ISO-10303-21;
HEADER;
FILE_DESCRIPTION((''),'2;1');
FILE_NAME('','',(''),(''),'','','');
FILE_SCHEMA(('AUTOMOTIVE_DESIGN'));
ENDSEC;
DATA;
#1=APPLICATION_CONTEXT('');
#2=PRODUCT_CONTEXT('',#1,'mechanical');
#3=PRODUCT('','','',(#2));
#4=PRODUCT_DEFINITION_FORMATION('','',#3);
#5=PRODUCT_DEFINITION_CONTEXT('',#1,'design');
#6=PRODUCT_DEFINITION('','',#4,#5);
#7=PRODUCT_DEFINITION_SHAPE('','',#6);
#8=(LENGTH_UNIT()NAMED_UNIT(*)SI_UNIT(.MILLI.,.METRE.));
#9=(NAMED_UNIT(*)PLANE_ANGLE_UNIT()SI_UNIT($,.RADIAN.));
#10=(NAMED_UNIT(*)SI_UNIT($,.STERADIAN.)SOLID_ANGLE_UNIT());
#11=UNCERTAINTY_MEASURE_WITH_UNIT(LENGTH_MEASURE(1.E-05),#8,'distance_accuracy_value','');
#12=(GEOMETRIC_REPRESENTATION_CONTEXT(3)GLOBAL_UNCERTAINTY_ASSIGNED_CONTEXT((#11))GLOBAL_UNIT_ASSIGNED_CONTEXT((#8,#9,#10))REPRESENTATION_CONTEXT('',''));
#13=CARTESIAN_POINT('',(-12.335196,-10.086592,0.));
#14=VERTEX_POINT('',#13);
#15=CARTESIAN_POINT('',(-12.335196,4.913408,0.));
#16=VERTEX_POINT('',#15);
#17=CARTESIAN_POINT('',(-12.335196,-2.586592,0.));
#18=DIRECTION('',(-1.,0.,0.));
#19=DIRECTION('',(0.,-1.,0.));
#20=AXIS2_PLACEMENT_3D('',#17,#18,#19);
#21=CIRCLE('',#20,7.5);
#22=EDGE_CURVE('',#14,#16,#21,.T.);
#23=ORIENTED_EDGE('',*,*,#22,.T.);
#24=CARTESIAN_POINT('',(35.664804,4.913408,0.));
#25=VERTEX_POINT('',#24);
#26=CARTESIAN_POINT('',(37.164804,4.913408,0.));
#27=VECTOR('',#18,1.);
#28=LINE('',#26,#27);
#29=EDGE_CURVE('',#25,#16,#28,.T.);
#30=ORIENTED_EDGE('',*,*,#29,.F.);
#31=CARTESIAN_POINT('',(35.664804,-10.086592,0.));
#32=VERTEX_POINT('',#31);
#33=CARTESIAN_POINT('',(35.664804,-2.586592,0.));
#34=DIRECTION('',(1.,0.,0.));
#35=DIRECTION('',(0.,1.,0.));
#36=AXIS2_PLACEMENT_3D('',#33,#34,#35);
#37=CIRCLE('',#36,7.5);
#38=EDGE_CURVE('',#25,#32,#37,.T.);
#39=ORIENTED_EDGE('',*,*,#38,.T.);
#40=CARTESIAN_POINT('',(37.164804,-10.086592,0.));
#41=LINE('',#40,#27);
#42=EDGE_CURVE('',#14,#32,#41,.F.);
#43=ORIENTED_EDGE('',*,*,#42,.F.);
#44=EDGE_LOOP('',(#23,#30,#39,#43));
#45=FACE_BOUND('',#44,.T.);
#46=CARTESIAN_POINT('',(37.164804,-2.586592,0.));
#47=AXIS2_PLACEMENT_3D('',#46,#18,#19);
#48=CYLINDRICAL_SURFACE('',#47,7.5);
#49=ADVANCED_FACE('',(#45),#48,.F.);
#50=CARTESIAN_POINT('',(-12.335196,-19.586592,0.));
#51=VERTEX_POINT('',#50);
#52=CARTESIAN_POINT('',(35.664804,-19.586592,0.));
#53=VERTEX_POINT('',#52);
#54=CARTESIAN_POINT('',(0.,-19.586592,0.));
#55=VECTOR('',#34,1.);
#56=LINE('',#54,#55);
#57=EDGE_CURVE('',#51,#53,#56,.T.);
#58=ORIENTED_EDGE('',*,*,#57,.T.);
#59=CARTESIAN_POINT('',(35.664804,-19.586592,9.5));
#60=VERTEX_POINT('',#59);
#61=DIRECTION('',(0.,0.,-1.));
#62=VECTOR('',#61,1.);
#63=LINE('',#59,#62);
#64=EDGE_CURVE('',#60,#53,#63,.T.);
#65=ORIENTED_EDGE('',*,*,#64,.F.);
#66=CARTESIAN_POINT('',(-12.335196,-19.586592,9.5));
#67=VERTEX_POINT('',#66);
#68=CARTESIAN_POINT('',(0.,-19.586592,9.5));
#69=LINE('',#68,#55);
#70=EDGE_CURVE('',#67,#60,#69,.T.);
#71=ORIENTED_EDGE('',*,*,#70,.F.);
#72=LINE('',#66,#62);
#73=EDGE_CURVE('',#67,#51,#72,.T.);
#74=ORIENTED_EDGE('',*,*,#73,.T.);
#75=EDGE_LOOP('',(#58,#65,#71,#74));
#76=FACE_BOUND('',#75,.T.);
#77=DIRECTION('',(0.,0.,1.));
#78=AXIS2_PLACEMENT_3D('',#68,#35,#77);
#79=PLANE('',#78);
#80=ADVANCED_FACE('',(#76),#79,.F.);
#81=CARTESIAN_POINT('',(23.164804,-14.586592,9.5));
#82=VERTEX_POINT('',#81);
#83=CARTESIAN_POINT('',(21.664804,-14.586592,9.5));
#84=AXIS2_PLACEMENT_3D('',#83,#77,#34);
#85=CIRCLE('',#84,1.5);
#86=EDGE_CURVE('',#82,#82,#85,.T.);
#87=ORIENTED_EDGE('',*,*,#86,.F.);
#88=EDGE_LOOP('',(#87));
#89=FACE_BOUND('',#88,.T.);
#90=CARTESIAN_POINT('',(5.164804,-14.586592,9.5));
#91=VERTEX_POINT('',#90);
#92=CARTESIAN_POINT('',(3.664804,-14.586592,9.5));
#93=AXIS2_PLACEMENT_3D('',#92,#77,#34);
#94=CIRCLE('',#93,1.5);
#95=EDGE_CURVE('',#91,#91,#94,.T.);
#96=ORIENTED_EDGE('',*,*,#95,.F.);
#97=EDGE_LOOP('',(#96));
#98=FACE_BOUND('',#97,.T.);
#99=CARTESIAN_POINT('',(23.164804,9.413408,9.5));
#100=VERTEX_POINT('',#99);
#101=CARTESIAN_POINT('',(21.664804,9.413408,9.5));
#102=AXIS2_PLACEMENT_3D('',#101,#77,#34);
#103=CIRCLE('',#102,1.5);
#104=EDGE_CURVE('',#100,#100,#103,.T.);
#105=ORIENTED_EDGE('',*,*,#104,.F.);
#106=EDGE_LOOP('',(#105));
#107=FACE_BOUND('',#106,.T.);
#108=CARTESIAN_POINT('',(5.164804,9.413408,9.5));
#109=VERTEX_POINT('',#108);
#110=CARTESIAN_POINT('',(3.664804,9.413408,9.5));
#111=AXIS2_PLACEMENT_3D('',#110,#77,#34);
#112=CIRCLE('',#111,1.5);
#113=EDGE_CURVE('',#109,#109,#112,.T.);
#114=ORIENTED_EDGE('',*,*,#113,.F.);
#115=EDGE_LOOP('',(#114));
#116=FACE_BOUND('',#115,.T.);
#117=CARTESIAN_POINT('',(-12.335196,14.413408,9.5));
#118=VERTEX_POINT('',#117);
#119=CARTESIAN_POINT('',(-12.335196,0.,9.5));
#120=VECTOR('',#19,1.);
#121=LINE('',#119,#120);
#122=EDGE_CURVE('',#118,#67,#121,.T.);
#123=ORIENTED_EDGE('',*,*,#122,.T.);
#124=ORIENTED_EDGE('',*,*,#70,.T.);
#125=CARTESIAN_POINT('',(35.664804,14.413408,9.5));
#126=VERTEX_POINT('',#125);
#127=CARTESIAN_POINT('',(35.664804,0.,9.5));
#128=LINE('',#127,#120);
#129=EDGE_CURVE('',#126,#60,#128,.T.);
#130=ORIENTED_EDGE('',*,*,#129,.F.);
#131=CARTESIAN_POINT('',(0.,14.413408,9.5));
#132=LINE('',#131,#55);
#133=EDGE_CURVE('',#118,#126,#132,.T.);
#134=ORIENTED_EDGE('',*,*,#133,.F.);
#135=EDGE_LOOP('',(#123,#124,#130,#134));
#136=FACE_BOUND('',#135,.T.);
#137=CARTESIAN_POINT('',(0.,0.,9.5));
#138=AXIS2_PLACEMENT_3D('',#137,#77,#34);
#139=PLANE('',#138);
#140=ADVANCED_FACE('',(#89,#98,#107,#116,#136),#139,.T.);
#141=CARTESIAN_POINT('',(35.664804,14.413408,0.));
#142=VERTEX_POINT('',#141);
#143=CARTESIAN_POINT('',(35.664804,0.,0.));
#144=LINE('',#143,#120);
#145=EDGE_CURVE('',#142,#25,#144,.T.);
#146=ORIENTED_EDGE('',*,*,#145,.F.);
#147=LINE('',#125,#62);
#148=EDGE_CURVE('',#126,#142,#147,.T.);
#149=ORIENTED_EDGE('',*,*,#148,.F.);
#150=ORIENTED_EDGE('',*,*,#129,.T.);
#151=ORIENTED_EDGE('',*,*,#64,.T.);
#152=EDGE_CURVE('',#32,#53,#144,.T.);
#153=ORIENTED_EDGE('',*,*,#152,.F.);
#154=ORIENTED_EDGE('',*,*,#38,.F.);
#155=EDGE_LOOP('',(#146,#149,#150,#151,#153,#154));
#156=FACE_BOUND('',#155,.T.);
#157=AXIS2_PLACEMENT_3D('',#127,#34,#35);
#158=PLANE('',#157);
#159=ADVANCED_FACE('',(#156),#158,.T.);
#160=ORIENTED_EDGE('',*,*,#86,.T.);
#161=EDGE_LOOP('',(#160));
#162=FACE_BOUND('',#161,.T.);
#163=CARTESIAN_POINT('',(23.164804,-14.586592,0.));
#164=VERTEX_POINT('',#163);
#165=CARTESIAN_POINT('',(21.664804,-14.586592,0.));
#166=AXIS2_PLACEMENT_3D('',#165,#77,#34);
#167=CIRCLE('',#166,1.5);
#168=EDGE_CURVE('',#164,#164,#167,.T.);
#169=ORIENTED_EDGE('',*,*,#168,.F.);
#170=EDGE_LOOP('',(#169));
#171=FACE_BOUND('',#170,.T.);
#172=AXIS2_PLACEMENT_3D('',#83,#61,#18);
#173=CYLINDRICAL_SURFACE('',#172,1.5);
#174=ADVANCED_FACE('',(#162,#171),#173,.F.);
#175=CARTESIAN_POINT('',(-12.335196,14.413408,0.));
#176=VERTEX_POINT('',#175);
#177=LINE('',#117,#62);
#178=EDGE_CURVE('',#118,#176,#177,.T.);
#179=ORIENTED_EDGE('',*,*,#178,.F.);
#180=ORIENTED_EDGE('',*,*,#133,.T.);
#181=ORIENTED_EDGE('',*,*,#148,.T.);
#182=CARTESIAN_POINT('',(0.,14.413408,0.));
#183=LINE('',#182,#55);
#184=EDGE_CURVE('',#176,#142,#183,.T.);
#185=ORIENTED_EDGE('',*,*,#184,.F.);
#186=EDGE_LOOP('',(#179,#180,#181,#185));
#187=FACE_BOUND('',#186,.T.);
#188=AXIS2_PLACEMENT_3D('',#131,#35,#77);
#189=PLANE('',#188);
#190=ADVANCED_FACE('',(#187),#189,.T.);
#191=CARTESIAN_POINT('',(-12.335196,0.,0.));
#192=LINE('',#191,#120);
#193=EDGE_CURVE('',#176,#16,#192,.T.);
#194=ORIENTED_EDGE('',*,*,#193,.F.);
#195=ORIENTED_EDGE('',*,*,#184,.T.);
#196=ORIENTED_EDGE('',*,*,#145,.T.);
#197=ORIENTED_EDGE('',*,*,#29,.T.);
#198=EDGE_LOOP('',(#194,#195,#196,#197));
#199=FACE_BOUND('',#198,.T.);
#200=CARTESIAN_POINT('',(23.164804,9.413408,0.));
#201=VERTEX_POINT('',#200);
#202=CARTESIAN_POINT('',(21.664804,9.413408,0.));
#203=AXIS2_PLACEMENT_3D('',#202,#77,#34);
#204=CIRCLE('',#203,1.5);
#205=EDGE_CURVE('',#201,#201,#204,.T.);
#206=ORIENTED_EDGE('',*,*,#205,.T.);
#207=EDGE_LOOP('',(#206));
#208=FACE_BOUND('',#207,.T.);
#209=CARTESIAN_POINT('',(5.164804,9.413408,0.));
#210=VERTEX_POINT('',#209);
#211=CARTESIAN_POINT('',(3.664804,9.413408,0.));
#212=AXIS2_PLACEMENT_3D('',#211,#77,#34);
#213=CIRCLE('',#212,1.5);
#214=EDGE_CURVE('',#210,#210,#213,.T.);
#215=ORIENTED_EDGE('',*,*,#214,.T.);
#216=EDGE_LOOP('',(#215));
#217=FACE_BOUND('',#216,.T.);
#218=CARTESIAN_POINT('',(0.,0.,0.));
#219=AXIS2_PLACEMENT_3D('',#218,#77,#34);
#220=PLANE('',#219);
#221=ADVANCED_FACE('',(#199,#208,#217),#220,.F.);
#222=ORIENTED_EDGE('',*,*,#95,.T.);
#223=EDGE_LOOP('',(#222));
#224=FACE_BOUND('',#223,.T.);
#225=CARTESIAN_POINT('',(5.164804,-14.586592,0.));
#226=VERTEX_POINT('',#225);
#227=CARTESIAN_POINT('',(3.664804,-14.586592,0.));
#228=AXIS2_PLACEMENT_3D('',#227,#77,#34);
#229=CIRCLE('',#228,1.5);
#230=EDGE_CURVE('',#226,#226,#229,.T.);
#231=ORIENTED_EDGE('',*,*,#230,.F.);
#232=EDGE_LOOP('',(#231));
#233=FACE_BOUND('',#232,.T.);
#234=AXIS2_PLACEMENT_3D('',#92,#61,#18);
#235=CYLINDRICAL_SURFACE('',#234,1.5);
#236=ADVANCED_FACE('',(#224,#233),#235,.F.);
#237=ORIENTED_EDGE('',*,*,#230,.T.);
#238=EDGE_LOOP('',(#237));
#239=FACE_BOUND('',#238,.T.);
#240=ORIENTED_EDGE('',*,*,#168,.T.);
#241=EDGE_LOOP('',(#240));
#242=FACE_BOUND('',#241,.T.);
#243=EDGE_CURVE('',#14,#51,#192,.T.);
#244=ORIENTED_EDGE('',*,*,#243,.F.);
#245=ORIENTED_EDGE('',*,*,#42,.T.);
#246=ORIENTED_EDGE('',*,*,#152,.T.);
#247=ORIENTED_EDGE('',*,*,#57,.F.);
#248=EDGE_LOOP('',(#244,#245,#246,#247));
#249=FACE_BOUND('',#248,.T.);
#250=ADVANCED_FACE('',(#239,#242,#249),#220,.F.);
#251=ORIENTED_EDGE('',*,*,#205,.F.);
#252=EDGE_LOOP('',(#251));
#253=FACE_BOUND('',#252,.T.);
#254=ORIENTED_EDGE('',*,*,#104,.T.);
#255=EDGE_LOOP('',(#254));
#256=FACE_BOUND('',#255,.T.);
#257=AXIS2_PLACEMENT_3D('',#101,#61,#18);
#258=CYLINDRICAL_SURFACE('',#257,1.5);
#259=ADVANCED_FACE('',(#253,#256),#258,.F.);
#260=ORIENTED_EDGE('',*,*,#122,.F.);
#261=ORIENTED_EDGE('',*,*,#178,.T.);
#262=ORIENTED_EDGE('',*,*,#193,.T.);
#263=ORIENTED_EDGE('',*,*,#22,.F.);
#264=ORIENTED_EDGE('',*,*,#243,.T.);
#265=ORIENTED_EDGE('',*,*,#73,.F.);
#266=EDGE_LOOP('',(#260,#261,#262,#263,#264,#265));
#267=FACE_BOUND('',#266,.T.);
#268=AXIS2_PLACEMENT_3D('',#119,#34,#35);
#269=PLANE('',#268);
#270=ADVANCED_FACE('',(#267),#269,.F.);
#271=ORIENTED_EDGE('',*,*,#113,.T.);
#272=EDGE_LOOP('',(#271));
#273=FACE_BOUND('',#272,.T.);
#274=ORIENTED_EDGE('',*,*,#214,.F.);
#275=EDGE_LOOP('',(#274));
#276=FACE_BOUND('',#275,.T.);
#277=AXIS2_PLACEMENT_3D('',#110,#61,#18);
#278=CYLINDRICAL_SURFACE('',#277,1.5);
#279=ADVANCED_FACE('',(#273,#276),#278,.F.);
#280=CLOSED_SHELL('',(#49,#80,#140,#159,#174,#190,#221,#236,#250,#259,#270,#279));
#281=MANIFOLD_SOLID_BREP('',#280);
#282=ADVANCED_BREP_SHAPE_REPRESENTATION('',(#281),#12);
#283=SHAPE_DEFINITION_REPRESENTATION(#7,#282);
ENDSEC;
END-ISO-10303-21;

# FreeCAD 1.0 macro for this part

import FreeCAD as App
import Part
import Sketcher
from FreeCAD import Vector
Q = App.Units.Quantity

doc = App.newDocument("Part")
params = doc.addObject("Spreadsheet::Sheet", "Params")
for row, (alias, value) in enumerate([
    ("sketch1_diameter", "3 mm"),
    ("sketch1_width", "48 mm"),
    ("sketch1_height", "34 mm"),
    ("pad1_length", "9.5 mm"),
    ("sketch2_diameter", "15 mm"),
    ("pocket1_length", "49.5 mm"),
], start=1):
    params.set(f"A{row}", alias)
    params.set(f"B{row}", "=" + value)
    params.setAlias(f"B{row}", alias)

body = doc.addObject("PartDesign::Body", "Body")

# Sketch on XY plane
sketch1 = body.newObject("Sketcher::SketchObject", "Sketch")
sketch1.AttachmentSupport = (doc.getObject("XY_Plane"), [""])
sketch1.MapMode = "FlatFace"
sketch1.addGeometry([
    Part.LineSegment(Vector(-12.3, 14.4, 0), Vector(-12.3, -19.6, 0)),  # 0
    Part.LineSegment(Vector(-12.3, -19.6, 0), Vector(35.7, -19.6, 0)),  # 1
    Part.LineSegment(Vector(35.7, -19.6, 0), Vector(35.7, 14.4, 0)),  # 2
    Part.LineSegment(Vector(35.7, 14.4, 0), Vector(-12.3, 14.4, 0)),  # 3
    Part.Circle(Vector(3.7, -14.6, 0), Vector(0, 0, 1), 1.5),  # 4
    Part.Circle(Vector(21.7, -14.6, 0), Vector(0, 0, 1), 1.5),  # 5
    Part.Circle(Vector(3.7, 9.4, 0), Vector(0, 0, 1), 1.5),  # 6
    Part.Circle(Vector(21.7, 9.4, 0), Vector(0, 0, 1), 1.5),  # 7
], False)
sketch1.addConstraint([
    Sketcher.Constraint("Coincident", 0, 2, 1, 1),
    Sketcher.Constraint("Coincident", 1, 2, 2, 1),
    Sketcher.Constraint("Coincident", 2, 2, 3, 1),
    Sketcher.Constraint("Coincident", 3, 2, 0, 1),
    Sketcher.Constraint("Vertical", 0),
    Sketcher.Constraint("Horizontal", 1),
    Sketcher.Constraint("Vertical", 2),
    Sketcher.Constraint("Horizontal", 3),
    Sketcher.Constraint("Equal", 4, 5),
    Sketcher.Constraint("Equal", 5, 6),
    Sketcher.Constraint("Equal", 6, 7),
    Sketcher.Constraint("Horizontal", 4, 3, 5, 3),
    Sketcher.Constraint("Horizontal", 6, 3, 7, 3),
    Sketcher.Constraint("Vertical", 4, 3, 6, 3),
    Sketcher.Constraint("Vertical", 5, 3, 7, 3),
    Sketcher.Constraint("Diameter", 4, Q("3 mm")),
    Sketcher.Constraint("DistanceX", 1, 1, 1, 2, Q("48 mm")),
    Sketcher.Constraint("DistanceY", 0, 2, 0, 1, Q("34 mm")),
    Sketcher.Constraint("DistanceX", 4, 3, 5, 3, Q("18 mm")),
    Sketcher.Constraint("DistanceY", 4, 3, 6, 3, Q("24 mm")),
    Sketcher.Constraint("DistanceX", 0, 2, 4, 3, Q("16 mm")),
    Sketcher.Constraint("DistanceY", 0, 2, 4, 3, Q("5 mm")),
    Sketcher.Constraint("DistanceX", -1, 1, 4, 3, Q("3.664804 mm")),
    Sketcher.Constraint("DistanceY", 4, 3, -1, 1, Q("14.586592 mm")),
])
sketch1.setExpression("Constraints[15]", "Params.sketch1_diameter")
sketch1.setExpression("Constraints[16]", "Params.sketch1_width")
sketch1.setExpression("Constraints[17]", "Params.sketch1_height")
pad1 = body.newObject("PartDesign::Pad", "Pad")
pad1.Profile = sketch1
pad1.setExpression("Length", "Params.pad1_length")

# Sketch on YZ plane
sketch2 = body.newObject("Sketcher::SketchObject", "Sketch001")
sketch2.AttachmentSupport = (doc.getObject("YZ_Plane"), [""])
sketch2.MapMode = "FlatFace"
sketch2.AttachmentOffset = App.Placement(Vector(0, 0, -12.335196), App.Rotation())
sketch2.addGeometry(Part.Circle(Vector(-3, 0, 0), Vector(0, 0, 1), 8), False)
sketch2.addConstraint([
    Sketcher.Constraint("PointOnObject", 0, 3, -1),
    Sketcher.Constraint("Diameter", 0, Q("15 mm")),
    Sketcher.Constraint("DistanceX", 0, 3, -1, 1, Q("2.586592 mm")),
])
sketch2.setExpression("Constraints[1]", "Params.sketch2_diameter")
pocket1 = body.newObject("PartDesign::Pocket", "Pocket")
pocket1.Profile = sketch2
pocket1.setExpression("Length", "Params.pocket1_length")
pocket1.Reversed = True

doc.recompute()
